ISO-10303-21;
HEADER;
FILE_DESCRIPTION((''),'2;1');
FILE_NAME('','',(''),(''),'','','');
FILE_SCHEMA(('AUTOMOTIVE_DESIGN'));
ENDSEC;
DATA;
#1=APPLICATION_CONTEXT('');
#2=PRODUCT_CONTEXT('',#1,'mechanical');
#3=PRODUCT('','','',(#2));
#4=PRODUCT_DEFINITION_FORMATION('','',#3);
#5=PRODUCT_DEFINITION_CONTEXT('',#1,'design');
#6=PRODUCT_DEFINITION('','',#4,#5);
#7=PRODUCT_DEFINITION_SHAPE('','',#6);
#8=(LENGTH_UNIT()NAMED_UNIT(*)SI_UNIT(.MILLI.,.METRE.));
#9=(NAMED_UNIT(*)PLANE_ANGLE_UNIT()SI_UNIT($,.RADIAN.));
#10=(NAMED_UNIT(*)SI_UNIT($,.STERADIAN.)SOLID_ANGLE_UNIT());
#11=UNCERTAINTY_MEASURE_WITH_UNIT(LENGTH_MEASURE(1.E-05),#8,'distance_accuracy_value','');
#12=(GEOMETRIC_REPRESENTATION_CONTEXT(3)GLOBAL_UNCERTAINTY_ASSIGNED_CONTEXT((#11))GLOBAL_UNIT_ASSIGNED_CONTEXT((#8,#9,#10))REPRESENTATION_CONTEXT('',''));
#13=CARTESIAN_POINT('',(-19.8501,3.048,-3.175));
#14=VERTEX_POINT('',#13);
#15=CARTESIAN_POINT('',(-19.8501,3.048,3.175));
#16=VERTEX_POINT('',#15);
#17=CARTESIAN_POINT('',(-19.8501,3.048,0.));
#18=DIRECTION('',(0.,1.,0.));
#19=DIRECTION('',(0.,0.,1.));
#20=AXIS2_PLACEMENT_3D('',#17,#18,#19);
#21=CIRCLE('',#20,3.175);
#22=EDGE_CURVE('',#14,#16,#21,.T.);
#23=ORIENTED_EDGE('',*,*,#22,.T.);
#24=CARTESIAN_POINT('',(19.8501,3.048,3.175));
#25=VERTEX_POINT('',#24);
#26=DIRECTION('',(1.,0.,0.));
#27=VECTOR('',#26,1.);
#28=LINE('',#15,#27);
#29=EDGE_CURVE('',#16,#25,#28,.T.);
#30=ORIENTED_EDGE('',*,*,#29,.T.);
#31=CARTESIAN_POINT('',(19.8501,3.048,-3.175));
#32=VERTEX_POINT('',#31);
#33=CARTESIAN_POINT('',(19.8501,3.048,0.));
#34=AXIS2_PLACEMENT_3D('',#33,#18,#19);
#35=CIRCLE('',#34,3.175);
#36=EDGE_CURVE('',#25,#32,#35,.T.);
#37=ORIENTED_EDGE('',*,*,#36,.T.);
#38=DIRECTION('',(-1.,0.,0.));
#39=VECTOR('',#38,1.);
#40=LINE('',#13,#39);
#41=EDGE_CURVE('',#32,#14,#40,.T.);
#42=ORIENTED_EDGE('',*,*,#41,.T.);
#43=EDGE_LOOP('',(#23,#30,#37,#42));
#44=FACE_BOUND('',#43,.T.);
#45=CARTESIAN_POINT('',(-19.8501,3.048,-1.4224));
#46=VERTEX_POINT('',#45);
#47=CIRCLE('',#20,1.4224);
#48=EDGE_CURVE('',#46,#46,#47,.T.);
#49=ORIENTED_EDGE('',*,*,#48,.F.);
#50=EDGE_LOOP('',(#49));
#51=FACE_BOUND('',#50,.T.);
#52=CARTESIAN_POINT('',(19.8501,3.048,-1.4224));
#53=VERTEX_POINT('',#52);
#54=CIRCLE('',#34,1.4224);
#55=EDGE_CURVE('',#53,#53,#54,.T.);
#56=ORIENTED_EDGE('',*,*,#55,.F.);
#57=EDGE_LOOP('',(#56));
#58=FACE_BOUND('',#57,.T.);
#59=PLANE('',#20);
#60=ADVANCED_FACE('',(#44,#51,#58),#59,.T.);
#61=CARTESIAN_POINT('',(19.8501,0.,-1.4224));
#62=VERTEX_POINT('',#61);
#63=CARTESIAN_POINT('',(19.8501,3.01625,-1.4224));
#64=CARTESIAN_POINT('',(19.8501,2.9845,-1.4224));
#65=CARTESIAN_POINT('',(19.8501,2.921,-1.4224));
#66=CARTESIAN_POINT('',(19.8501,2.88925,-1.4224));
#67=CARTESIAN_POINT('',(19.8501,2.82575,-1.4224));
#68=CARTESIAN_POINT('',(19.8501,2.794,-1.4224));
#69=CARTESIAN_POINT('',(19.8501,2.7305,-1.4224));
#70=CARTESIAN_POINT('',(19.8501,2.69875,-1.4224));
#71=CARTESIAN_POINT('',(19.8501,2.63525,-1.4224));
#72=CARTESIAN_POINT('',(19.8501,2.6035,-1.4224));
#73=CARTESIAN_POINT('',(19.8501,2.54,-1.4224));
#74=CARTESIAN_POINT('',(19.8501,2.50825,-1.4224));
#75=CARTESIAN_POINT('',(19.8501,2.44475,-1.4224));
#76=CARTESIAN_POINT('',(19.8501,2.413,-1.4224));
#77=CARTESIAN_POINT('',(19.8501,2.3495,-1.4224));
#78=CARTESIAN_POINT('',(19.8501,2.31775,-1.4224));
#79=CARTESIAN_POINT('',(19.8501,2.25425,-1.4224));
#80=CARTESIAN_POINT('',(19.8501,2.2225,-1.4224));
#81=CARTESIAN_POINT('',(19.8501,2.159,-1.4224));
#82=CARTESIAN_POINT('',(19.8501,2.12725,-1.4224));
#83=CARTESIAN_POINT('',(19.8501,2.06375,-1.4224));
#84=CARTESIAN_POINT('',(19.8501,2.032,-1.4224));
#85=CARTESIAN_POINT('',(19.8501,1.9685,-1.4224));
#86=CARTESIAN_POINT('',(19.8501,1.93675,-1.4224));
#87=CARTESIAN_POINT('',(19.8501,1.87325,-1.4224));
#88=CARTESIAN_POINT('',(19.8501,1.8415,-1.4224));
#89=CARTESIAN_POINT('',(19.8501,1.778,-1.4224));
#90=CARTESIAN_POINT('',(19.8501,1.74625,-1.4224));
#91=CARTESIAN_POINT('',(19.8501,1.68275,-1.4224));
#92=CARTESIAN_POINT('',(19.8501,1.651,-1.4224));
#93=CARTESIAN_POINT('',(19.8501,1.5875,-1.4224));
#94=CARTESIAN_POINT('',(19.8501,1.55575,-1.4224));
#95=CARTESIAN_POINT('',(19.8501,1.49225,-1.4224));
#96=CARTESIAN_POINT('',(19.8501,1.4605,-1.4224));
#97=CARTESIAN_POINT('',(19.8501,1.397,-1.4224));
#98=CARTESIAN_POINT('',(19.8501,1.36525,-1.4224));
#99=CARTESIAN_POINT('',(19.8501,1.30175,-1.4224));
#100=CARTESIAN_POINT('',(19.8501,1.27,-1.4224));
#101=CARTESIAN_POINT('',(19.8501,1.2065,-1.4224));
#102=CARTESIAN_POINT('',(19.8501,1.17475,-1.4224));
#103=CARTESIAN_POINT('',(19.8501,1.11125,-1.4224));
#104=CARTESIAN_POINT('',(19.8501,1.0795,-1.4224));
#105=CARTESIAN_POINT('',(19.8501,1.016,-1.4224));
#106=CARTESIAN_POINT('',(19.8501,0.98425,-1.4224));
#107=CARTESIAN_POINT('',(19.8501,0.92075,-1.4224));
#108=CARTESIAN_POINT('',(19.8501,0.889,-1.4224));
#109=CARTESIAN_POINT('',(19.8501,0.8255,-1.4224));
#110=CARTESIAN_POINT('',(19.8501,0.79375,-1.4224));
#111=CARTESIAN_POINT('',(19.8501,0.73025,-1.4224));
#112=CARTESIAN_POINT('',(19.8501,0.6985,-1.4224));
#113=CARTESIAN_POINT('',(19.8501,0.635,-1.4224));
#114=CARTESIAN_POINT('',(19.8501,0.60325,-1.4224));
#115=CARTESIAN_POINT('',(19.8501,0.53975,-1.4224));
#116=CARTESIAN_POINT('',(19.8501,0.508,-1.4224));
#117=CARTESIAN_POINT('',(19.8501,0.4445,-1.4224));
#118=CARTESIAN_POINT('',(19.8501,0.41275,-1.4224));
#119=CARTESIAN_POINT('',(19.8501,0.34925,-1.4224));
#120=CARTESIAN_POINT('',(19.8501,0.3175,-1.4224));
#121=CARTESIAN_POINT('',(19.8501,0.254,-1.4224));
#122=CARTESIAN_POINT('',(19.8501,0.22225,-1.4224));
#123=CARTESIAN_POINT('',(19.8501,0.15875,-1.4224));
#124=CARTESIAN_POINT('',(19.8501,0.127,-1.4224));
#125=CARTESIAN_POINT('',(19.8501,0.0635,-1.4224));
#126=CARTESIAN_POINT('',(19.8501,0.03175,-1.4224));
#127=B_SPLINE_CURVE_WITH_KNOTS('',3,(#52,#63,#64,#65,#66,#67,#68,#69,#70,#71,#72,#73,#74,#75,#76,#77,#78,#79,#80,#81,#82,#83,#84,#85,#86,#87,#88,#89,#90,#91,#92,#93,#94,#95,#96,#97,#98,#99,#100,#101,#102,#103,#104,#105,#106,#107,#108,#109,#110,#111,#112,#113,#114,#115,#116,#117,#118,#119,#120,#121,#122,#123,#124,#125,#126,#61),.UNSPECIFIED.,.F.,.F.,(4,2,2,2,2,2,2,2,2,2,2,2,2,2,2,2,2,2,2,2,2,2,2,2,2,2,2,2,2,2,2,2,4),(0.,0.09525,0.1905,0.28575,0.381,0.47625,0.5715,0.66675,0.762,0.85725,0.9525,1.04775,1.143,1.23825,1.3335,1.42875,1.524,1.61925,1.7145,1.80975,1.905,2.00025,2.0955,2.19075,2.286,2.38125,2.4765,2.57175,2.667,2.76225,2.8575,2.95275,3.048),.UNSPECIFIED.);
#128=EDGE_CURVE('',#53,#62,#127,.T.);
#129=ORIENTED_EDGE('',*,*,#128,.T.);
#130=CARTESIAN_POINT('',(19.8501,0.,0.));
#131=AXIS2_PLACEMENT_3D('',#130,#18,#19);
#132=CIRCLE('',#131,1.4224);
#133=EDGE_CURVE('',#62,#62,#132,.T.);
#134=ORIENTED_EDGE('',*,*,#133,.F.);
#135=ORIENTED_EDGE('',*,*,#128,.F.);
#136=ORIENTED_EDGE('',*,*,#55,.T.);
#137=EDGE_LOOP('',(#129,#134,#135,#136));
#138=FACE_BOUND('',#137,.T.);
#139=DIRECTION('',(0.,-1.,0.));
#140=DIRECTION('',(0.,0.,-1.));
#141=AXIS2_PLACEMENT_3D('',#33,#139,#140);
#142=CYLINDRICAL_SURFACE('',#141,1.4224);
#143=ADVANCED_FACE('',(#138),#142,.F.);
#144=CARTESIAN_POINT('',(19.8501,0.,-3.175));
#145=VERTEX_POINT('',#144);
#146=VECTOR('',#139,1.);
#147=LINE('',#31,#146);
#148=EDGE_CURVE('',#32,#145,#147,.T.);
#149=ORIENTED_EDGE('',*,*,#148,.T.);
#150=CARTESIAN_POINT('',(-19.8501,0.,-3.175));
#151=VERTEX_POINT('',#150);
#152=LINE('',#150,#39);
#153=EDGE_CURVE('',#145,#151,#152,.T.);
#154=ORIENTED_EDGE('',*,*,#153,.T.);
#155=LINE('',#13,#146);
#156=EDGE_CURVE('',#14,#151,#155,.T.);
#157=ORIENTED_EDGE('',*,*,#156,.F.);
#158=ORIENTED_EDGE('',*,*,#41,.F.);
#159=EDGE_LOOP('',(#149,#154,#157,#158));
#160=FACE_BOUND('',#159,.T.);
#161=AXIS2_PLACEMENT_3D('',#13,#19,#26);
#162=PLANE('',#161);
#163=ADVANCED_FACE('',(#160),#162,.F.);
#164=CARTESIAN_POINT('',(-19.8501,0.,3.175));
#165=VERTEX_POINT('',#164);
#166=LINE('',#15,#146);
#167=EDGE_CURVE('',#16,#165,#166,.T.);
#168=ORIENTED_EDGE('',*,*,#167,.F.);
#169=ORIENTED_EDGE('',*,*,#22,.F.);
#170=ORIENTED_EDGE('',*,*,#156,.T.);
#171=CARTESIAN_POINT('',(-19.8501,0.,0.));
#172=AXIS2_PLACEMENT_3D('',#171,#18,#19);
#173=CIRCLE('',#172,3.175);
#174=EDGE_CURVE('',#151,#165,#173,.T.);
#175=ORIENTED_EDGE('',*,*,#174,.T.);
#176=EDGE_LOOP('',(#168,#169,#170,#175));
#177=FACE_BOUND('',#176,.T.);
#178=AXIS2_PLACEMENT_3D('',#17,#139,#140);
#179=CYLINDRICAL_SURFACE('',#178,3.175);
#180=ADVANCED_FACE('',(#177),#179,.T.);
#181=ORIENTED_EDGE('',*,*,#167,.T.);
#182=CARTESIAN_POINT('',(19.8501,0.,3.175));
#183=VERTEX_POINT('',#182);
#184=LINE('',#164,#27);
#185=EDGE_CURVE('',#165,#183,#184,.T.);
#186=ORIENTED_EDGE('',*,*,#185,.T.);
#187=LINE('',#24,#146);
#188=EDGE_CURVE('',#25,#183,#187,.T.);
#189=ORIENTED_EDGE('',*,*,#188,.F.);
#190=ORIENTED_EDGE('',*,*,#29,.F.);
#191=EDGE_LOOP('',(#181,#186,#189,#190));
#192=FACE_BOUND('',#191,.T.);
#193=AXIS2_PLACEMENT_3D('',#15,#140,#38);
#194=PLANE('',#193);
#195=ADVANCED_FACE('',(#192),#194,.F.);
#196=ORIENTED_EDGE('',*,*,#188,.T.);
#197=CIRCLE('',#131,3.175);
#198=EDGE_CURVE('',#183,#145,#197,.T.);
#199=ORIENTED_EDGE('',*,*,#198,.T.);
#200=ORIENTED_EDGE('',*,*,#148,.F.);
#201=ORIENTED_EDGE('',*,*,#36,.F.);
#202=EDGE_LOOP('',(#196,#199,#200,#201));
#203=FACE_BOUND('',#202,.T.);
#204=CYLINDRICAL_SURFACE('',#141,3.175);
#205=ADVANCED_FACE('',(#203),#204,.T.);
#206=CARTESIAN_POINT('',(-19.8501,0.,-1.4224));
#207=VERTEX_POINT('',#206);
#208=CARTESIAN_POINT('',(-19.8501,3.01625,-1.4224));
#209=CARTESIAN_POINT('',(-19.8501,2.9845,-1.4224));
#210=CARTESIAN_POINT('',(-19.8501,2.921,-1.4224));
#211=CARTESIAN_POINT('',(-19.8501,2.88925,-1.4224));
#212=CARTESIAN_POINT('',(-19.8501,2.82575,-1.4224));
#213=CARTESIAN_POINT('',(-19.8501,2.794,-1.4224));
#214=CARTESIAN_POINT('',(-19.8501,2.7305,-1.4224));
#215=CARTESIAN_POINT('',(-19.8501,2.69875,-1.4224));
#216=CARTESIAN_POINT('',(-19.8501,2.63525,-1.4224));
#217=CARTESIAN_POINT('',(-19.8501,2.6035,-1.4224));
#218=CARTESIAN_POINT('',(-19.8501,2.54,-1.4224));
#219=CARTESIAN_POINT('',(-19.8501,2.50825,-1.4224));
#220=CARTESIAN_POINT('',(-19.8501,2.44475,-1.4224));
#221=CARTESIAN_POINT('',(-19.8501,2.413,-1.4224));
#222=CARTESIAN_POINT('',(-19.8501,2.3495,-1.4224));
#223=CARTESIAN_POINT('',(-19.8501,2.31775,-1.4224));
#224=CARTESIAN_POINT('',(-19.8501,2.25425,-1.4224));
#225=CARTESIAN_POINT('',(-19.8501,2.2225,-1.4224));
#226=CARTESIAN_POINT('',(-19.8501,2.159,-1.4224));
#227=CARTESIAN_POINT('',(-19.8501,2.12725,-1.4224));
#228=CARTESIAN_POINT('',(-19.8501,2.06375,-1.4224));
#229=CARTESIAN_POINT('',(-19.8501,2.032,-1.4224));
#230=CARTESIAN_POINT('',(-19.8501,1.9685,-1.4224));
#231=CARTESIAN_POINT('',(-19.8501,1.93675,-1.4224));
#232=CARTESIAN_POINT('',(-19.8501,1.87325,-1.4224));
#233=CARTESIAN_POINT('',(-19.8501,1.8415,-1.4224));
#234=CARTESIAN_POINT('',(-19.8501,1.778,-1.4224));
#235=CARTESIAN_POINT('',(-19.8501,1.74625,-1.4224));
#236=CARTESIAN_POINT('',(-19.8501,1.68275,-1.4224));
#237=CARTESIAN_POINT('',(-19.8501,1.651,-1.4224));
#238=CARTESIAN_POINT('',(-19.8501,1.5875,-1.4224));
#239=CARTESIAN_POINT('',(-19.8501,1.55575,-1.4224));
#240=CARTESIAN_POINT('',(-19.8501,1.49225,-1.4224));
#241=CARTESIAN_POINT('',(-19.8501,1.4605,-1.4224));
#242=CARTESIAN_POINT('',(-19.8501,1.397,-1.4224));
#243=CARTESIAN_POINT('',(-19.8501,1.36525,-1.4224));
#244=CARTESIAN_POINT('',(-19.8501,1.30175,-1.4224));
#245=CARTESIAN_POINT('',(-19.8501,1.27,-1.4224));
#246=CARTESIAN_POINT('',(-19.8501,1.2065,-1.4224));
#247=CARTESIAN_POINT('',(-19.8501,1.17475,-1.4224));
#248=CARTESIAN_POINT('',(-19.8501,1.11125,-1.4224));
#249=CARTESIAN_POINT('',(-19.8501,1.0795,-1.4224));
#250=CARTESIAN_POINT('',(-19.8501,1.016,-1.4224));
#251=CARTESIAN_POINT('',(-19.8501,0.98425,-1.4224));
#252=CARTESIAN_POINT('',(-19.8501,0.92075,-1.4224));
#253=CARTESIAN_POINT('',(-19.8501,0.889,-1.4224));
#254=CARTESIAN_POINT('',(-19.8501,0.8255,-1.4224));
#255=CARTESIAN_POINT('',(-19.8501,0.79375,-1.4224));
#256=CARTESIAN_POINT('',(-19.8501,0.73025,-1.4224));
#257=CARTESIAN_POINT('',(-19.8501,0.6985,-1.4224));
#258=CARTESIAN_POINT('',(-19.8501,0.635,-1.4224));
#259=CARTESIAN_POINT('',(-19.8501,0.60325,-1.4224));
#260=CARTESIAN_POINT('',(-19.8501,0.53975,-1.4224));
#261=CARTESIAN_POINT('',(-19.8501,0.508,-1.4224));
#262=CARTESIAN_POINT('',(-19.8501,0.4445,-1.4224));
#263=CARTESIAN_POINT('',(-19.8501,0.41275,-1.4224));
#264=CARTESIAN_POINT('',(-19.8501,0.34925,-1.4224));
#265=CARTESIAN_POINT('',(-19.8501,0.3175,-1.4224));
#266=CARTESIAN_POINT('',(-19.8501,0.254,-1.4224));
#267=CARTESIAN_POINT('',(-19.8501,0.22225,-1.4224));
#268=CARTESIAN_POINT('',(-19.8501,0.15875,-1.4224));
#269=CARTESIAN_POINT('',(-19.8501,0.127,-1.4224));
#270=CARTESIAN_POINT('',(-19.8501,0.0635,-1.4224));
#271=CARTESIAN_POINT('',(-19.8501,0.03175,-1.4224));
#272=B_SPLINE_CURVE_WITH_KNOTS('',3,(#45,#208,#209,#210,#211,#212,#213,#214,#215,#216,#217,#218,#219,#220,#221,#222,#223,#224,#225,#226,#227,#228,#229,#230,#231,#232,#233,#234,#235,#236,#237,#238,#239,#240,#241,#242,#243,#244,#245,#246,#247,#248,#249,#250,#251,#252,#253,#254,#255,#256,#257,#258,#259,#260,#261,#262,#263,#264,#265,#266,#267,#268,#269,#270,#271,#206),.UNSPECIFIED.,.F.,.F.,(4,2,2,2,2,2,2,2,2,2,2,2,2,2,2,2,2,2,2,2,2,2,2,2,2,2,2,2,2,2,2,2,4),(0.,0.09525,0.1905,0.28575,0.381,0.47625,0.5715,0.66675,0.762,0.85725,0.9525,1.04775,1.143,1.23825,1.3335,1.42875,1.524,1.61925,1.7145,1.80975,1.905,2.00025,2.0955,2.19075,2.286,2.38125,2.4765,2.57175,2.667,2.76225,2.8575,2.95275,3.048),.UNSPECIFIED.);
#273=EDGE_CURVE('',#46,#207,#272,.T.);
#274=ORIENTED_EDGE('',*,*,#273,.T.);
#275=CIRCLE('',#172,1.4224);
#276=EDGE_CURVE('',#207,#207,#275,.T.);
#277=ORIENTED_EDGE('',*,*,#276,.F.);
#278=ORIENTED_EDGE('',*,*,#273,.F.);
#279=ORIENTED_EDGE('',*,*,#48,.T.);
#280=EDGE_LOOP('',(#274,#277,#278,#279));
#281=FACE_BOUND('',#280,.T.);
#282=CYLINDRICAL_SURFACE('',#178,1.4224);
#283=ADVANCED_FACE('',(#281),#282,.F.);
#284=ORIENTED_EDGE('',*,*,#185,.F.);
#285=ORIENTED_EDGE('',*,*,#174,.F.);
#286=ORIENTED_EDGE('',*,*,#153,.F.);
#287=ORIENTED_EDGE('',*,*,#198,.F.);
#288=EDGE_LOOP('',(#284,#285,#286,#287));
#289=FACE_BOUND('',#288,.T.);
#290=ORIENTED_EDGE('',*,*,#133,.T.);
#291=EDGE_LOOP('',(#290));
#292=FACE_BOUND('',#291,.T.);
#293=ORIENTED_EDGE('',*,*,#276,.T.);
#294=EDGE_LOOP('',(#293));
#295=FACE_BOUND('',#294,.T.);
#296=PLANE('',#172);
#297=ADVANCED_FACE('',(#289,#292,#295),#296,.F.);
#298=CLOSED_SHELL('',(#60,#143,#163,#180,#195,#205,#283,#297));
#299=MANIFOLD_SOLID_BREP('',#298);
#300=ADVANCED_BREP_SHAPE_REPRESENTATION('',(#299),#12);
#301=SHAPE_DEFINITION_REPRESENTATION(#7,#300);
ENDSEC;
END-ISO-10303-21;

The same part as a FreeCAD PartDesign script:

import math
import FreeCAD as App
import Part
import Sketcher

V = App.Vector
Q = App.Units.Quantity

doc = App.newDocument("Part")
body = doc.addObject("PartDesign::Body", "Body")

sketch1 = body.newObject("Sketcher::SketchObject", "Sketch")
sketch1.AttachmentSupport = (doc.getObject("XZ_Plane"), [""])
sketch1.MapMode = "FlatFace"
sketch1.addGeometry(Part.LineSegment(V(19.9, -3.2, 0), V(-19.9, -3.2, 0)), False)
sketch1.addGeometry(Part.ArcOfCircle(Part.Circle(V(-19.9, 0, 0), V(0, 0, 1), 3.2), math.radians(90), math.radians(270)), False)
sketch1.addGeometry(Part.LineSegment(V(-19.9, 3.2, 0), V(19.9, 3.2, 0)), False)
sketch1.addGeometry(Part.ArcOfCircle(Part.Circle(V(19.9, 0, 0), V(0, 0, 1), 3.2), math.radians(-90), math.radians(90)), False)
sketch1.addGeometry(Part.Circle(V(19.9, 0, 0), V(0, 0, 1), 1.4), False)
sketch1.addGeometry(Part.Circle(V(-19.9, 0, 0), V(0, 0, 1), 1.4), False)
sketch1.addConstraint(Sketcher.Constraint("Tangent", 0, 2, 1, 2))
sketch1.addConstraint(Sketcher.Constraint("Tangent", 1, 1, 2, 1))
sketch1.addConstraint(Sketcher.Constraint("Tangent", 2, 2, 3, 2))
sketch1.addConstraint(Sketcher.Constraint("Tangent", 3, 1, 0, 1))
sketch1.addConstraint(Sketcher.Constraint("Horizontal", 0))
sketch1.addConstraint(Sketcher.Constraint("Horizontal", 2))
sketch1.addConstraint(Sketcher.Constraint("Coincident", 4, 3, 3, 3))
sketch1.addConstraint(Sketcher.Constraint("Coincident", 5, 3, 1, 3))
sketch1.addConstraint(Sketcher.Constraint("Equal", 4, 5))
sketch1.addConstraint(Sketcher.Constraint("Symmetric", 1, 3, 3, 3, -1, 1))
sketch1.addConstraint(Sketcher.Constraint("Diameter", 4, Q("0.112 in")))
sketch1.addConstraint(Sketcher.Constraint("Radius", 1, Q("0.125 in")))
sketch1.addConstraint(Sketcher.Constraint("DistanceX", 0, 2, 0, 1, Q("1.563 in")))
pad1 = body.newObject("PartDesign::Pad", "Pad")
pad1.Profile = sketch1
pad1.Length = Q("0.12 in")
pad1.Reversed = True

doc.recompute()
